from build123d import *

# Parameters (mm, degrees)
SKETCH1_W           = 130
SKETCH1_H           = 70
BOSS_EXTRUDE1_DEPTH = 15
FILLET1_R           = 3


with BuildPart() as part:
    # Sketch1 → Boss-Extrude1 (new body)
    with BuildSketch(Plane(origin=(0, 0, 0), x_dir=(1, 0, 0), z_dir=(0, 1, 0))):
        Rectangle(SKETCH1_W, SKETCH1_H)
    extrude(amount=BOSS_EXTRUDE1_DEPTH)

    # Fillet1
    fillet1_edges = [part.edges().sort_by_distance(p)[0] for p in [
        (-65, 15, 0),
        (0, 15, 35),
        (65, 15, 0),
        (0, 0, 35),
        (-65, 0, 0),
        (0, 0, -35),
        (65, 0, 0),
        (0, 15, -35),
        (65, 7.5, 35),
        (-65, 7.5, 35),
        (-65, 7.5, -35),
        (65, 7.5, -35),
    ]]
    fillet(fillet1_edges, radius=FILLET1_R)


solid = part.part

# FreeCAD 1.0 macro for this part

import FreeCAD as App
import Part
import Sketcher

V = App.Vector
Q = App.Units.Quantity


def add_polygon(sketch, points):
    """Adds a closed chain of lines whose ends are joined by coincident constraints."""
    first, n = sketch.GeometryCount, len(points)
    for a, b in zip(points, points[1:] + points[:1]):
        sketch.addGeometry(Part.LineSegment(App.Vector(*a, 0), App.Vector(*b, 0)), False)
    for i in range(n):
        sketch.addConstraint(Sketcher.Constraint("Coincident", first + i, 2, first + (i + 1) % n, 1))

doc = App.newDocument("Part")
body = doc.addObject("PartDesign::Body", "Body")

sketch1 = body.newObject("Sketcher::SketchObject", "Sketch")
sketch1.AttachmentSupport = (doc.getObject("XZ_Plane"), [""])
sketch1.MapMode = "FlatFace"
add_polygon(sketch1, [(-65, -35), (-65, 35), (65, 35), (65, -35)])
sketch1.addConstraint(Sketcher.Constraint("Vertical", 0))
sketch1.addConstraint(Sketcher.Constraint("Horizontal", 1))
sketch1.addConstraint(Sketcher.Constraint("Vertical", 2))
sketch1.addConstraint(Sketcher.Constraint("Horizontal", 3))
sketch1.addConstraint(Sketcher.Constraint("Symmetric", 0, 2, 2, 2, -1, 1))
sketch1.addConstraint(Sketcher.Constraint("DistanceX", 1, 1, 1, 2, Q("130 mm")))
sketch1.addConstraint(Sketcher.Constraint("DistanceY", 0, 1, 0, 2, Q("70 mm")))
pad1 = body.newObject("PartDesign::Pad", "Pad")
pad1.Profile = sketch1
pad1.Length = 15
pad1.Reversed = True
doc.recompute()

fillet = body.newObject("PartDesign::Fillet", "Fillet")
fillet.Base = (pad1, ["Edge1"])
fillet.UseAllEdges = True
fillet.Radius = 3

doc.recompute()
